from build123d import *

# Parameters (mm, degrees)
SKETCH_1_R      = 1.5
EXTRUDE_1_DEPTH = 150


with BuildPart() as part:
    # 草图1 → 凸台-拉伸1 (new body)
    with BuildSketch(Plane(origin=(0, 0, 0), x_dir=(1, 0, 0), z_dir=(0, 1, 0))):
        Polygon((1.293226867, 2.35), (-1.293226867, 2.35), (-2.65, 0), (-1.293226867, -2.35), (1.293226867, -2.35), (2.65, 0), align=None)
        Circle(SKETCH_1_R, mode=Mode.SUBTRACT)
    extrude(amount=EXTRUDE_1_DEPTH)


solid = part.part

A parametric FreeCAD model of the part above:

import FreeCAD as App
import Part
import Sketcher
Q = App.Units.Quantity

doc = App.newDocument("Part")
body = doc.addObject("PartDesign::Body", "Body")

# Sketch on XZ plane
sketch1 = body.newObject("Sketcher::SketchObject", "Sketch")
sketch1.AttachmentSupport = (doc.getObject("XZ_Plane"), [""])
sketch1.MapMode = "FlatFace"
sketch1.addGeometry([
    Part.LineSegment(App.Vector(1.3, -2.4, 0), App.Vector(-1.3, -2.4, 0)),  # 0
    Part.LineSegment(App.Vector(-1.3, -2.4, 0), App.Vector(-2.6, 0, 0)),  # 1
    Part.LineSegment(App.Vector(-2.6, 0, 0), App.Vector(-1.3, 2.4, 0)),  # 2
    Part.LineSegment(App.Vector(-1.3, 2.4, 0), App.Vector(1.3, 2.4, 0)),  # 3
    Part.LineSegment(App.Vector(1.3, 2.4, 0), App.Vector(2.6, 0, 0)),  # 4
    Part.LineSegment(App.Vector(2.6, 0, 0), App.Vector(1.3, -2.4, 0)),  # 5
    Part.Circle(App.Vector(0, 0, 0), App.Vector(0, 0, 1), 1.5),  # 6
], False)
sketch1.addConstraint([
    Sketcher.Constraint("Coincident", 0, 2, 1, 1),
    Sketcher.Constraint("Coincident", 1, 2, 2, 1),
    Sketcher.Constraint("Coincident", 2, 2, 3, 1),
    Sketcher.Constraint("Coincident", 3, 2, 4, 1),
    Sketcher.Constraint("Coincident", 4, 2, 5, 1),
    Sketcher.Constraint("Coincident", 5, 2, 0, 1),
    Sketcher.Constraint("Horizontal", 0),
    Sketcher.Constraint("Horizontal", 3),
    Sketcher.Constraint("Coincident", 6, 3, -1, 1),
    Sketcher.Constraint("Symmetric", 0, 2, 3, 2, -1, 1),
    Sketcher.Constraint("Symmetric", 1, 2, 4, 2, -1, 1),
    Sketcher.Constraint("PointOnObject", 1, 2, -1),
    Sketcher.Constraint("Parallel", 2, 5),
    Sketcher.Constraint("Vertical", 0, 2, 2, 2),
    Sketcher.Constraint("Diameter", 6, Q("3 mm")),
    Sketcher.Constraint("Angle", 1, Q("120 deg")),
    Sketcher.Constraint("DistanceY", 0, 2, 2, 2, Q("4.7 mm")),
    Sketcher.Constraint("DistanceX", 1, 2, 4, 2, Q("5.3 mm")),
])
pad1 = body.newObject("PartDesign::Pad", "Pad")
pad1.Profile = sketch1
pad1.Length = 150
pad1.Reversed = True

doc.recompute()
